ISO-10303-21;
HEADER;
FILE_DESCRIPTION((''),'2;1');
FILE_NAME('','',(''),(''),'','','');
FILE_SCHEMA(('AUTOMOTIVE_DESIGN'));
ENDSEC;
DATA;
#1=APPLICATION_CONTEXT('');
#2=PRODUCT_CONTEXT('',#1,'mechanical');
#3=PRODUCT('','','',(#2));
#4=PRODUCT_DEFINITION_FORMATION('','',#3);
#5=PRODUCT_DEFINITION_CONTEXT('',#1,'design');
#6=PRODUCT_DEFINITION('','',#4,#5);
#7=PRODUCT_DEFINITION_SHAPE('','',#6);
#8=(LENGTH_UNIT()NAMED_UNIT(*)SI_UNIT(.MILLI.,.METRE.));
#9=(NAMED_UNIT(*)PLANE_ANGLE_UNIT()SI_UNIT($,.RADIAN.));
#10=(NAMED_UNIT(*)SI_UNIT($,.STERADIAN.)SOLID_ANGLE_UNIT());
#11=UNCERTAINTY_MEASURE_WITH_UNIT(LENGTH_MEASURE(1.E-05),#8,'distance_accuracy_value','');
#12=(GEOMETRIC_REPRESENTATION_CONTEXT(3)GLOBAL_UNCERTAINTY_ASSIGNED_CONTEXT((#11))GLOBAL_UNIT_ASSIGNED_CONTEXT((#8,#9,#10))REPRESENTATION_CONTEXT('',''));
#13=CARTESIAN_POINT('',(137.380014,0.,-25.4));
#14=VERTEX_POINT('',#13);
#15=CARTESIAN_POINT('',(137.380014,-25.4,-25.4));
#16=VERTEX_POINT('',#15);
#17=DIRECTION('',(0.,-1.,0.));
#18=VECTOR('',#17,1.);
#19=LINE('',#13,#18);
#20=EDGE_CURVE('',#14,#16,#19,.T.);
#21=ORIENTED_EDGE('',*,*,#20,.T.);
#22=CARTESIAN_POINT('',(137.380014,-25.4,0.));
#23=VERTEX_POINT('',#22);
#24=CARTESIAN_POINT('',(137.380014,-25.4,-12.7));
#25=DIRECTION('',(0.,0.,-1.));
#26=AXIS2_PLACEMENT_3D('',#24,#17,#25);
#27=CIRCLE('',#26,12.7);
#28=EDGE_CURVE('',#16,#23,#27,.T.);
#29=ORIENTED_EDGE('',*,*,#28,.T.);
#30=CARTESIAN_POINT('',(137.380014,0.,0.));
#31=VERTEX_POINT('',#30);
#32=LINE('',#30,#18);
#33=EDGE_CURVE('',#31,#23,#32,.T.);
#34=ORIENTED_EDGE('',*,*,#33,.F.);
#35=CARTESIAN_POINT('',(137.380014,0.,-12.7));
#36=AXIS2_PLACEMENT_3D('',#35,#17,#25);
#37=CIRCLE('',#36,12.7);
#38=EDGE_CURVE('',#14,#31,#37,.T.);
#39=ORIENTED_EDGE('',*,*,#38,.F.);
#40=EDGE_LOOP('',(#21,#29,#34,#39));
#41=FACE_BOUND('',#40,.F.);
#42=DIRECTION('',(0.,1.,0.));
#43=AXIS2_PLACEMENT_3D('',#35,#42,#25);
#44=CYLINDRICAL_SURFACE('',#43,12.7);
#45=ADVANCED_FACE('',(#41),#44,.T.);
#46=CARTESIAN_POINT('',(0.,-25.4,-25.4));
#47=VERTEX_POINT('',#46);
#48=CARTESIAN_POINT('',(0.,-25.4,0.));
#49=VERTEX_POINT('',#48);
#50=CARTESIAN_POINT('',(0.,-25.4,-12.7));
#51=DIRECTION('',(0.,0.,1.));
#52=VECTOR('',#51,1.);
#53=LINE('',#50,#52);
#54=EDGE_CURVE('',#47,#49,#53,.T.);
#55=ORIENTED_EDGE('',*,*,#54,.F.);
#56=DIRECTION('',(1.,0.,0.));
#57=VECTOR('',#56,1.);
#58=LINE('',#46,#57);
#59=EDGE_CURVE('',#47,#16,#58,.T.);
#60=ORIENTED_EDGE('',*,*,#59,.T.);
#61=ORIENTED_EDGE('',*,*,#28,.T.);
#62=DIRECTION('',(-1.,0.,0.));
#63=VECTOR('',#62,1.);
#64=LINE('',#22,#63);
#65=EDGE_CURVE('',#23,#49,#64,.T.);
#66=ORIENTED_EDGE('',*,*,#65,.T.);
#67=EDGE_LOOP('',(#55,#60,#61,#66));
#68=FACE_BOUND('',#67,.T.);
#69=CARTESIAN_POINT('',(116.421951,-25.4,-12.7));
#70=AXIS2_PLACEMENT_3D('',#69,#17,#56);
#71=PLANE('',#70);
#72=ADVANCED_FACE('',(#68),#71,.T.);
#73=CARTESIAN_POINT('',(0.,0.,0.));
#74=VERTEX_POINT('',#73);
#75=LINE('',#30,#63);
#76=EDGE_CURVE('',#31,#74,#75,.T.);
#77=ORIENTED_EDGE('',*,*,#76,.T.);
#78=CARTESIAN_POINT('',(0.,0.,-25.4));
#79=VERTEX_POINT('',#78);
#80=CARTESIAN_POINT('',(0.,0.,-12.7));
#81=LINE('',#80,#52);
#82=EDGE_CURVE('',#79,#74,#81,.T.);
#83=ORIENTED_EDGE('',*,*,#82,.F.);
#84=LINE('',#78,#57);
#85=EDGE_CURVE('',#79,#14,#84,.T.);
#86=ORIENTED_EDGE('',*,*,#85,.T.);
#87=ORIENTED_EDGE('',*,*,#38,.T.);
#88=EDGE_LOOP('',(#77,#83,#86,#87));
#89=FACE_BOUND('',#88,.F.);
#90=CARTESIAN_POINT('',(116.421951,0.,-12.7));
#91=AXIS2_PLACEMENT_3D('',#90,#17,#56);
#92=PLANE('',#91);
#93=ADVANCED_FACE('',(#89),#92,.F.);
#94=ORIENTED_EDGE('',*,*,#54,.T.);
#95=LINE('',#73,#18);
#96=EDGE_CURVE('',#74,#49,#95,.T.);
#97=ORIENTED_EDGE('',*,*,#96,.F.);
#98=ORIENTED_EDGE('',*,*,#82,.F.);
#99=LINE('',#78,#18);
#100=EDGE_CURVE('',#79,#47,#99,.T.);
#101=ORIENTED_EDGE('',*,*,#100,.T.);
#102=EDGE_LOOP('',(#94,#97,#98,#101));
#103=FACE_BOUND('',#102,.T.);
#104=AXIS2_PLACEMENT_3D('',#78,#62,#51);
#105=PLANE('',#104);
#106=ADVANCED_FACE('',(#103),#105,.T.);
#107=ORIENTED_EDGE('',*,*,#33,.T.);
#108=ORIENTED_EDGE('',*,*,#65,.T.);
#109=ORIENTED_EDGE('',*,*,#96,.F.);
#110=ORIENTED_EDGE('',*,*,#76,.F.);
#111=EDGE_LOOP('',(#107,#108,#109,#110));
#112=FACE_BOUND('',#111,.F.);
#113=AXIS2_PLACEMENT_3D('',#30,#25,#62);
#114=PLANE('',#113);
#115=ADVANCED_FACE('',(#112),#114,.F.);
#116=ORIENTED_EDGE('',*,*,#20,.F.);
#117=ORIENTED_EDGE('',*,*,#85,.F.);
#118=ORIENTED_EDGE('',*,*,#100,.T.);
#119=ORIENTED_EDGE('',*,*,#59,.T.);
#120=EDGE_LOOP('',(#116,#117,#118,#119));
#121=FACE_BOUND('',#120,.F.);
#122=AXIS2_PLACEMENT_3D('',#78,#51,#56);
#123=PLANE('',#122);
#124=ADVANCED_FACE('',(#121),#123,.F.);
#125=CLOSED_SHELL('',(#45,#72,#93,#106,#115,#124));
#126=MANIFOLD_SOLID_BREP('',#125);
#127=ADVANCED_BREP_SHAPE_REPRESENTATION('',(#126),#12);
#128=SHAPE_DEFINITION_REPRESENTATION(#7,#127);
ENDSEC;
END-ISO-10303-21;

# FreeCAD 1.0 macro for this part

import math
import FreeCAD as App
import Part
import Sketcher

V = App.Vector
Q = App.Units.Quantity

doc = App.newDocument("Part")
body = doc.addObject("PartDesign::Body", "Body")

# Sketch on XZ plane
sketch1 = doc.addObject("Sketcher::SketchObject", "Sketch")
body.addObject(sketch1)
sketch1.AttachmentSupport = (doc.XZ_Plane, [""])
sketch1.MapMode = "FlatFace"
sketch1.addGeometry([
    Part.LineSegment(V(137.380014, 0, 0), V(0, 0, 0)),
    Part.LineSegment(V(0, 0, 0), V(0, -25.4, 0)),
    Part.LineSegment(V(0, -25.4, 0), V(137.380014, -25.4, 0)),
    Part.ArcOfCircle(Part.Circle(V(137.380014, -12.7, 0), V(0, 0, 1), 12.7), math.radians(-90), math.radians(90)),
], False)
sketch1.addConstraint([
    Sketcher.Constraint("Coincident", 0, 2, 1, 1),
    Sketcher.Constraint("Coincident", 1, 2, 2, 1),
    Sketcher.Constraint("Tangent", 2, 2, 3, 1),
    Sketcher.Constraint("Tangent", 3, 2, 0, 1),
    Sketcher.Constraint("Horizontal", 0),
    Sketcher.Constraint("Vertical", 1),
    Sketcher.Constraint("Horizontal", 2),
    Sketcher.Constraint("Coincident", 0, 2, -1, 1),
    Sketcher.Constraint("Radius", 3, Q("0.5 in")),
    Sketcher.Constraint("DistanceX", 0, 2, 0, 1, Q("137.380014 mm")),
])
pad1 = doc.addObject("PartDesign::Pad", "Pad")
body.addObject(pad1)
pad1.Profile = sketch1
pad1.Length = Q("1 in")

doc.recompute()
